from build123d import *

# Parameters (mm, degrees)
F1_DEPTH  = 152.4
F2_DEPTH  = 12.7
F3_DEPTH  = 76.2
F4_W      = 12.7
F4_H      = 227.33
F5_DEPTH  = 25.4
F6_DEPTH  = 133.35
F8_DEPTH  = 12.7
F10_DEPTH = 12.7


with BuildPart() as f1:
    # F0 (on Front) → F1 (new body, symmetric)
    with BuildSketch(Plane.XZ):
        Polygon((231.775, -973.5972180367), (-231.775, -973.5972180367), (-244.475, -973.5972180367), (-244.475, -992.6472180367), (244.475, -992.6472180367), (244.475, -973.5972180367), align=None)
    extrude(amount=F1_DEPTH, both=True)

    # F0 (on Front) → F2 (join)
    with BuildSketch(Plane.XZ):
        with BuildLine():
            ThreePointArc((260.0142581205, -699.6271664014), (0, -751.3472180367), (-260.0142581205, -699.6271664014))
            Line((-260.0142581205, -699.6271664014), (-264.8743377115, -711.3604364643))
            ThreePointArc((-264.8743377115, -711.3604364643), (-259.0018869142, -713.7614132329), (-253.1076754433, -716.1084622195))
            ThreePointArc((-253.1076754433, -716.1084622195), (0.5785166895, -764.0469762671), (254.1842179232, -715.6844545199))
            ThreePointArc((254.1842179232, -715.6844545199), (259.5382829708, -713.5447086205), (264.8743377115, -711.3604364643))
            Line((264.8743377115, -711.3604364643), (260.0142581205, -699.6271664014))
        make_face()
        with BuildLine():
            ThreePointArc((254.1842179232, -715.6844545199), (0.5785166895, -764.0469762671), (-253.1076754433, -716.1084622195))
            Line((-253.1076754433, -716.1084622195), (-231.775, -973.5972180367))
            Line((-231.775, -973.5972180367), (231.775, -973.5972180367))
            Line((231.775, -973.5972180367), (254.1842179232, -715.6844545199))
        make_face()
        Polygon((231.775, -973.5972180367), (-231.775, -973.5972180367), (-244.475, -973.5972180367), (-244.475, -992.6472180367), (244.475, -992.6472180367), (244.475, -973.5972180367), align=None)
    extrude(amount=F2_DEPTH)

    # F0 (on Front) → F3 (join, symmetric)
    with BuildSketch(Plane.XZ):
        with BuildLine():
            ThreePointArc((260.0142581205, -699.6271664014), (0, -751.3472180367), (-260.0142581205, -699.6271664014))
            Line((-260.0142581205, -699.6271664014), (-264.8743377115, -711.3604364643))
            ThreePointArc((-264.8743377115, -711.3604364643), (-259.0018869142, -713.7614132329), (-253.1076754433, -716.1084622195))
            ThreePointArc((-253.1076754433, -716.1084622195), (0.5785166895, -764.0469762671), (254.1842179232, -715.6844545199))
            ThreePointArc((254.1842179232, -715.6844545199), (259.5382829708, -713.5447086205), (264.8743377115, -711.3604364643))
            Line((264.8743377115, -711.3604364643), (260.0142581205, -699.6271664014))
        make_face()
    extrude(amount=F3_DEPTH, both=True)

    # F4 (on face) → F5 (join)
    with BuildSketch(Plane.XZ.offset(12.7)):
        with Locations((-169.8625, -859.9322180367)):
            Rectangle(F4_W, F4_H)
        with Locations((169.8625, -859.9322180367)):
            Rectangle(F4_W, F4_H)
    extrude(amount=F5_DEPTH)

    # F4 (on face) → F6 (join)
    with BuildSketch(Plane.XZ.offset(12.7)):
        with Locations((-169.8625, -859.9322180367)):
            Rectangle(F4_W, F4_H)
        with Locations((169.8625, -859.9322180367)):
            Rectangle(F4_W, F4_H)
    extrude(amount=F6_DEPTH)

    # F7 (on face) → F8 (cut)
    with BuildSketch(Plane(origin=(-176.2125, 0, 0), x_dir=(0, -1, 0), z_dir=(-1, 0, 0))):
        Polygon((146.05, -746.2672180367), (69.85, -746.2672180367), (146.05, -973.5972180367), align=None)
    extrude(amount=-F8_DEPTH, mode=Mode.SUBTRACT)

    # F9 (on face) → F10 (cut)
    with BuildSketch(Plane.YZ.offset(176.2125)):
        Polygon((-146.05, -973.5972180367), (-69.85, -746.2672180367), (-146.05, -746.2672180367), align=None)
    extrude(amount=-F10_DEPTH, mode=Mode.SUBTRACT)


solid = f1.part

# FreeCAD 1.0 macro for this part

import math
import FreeCAD as App
import Part
import Sketcher
from FreeCAD import Vector
Q = App.Units.Quantity

doc = App.newDocument("Part")
body = doc.addObject("PartDesign::Body", "Body")

sketch1 = body.newObject("Sketcher::SketchObject", "Sketch")
sketch1.AttachmentSupport = (doc.getObject("XZ_Plane"), [""])
sketch1.MapMode = "FlatFace"
sketch1.addGeometry(Part.LineSegment(Vector(-244, -974, 0), Vector(-244, -993, 0)), False)
sketch1.addGeometry(Part.LineSegment(Vector(-244, -993, 0), Vector(244, -993, 0)), False)
sketch1.addGeometry(Part.LineSegment(Vector(244, -993, 0), Vector(244, -974, 0)), False)
sketch1.addGeometry(Part.LineSegment(Vector(244, -974, 0), Vector(-244, -974, 0)), False)
sketch1.addConstraint(Sketcher.Constraint("Coincident", 0, 2, 1, 1))
sketch1.addConstraint(Sketcher.Constraint("Coincident", 1, 2, 2, 1))
sketch1.addConstraint(Sketcher.Constraint("Coincident", 2, 2, 3, 1))
sketch1.addConstraint(Sketcher.Constraint("Coincident", 3, 2, 0, 1))
sketch1.addConstraint(Sketcher.Constraint("Vertical", 0))
sketch1.addConstraint(Sketcher.Constraint("Horizontal", 1))
sketch1.addConstraint(Sketcher.Constraint("Vertical", 2))
sketch1.addConstraint(Sketcher.Constraint("Horizontal", 3))
sketch1.addConstraint(Sketcher.Constraint("DistanceX", 1, 1, 1, 2, Q("19.25 in")))
sketch1.addConstraint(Sketcher.Constraint("DistanceY", 0, 2, 0, 1, Q("0.75 in")))
sketch1.addConstraint(Sketcher.Constraint("DistanceX", 0, 2, -1, 1, Q("9.625 in")))
sketch1.addConstraint(Sketcher.Constraint("DistanceY", 0, 2, -1, 1, Q("992.647218 mm")))
pad1 = body.newObject("PartDesign::Pad", "Pad")
pad1.Profile = sketch1
pad1.Length = Q("12 in")
pad1.Midplane = True

sketch2 = body.newObject("Sketcher::SketchObject", "Sketch001")
sketch2.AttachmentSupport = (doc.getObject("XZ_Plane"), [""])
sketch2.MapMode = "FlatFace"
sketch2.addGeometry(Part.ArcOfCircle(Part.Circle(Vector(0, -72, 0), Vector(0, 0, 1), 679), math.radians(-113), math.radians(-67)), False)
sketch2.addGeometry(Part.LineSegment(Vector(-260, -700, 0), Vector(-265, -711, 0)), False)
sketch2.addGeometry(Part.ArcOfCircle(Part.Circle(Vector(0, -72, 0), Vector(0, 0, 1), 692), math.radians(-112.5), math.radians(-111.45)), False)
sketch2.addGeometry(Part.LineSegment(Vector(-253, -716, 0), Vector(-232, -974, 0)), False)
sketch2.addGeometry(Part.LineSegment(Vector(-232, -974, 0), Vector(-244, -974, 0)), False)
sketch2.addGeometry(Part.LineSegment(Vector(-244, -974, 0), Vector(-244, -993, 0)), False)
sketch2.addGeometry(Part.LineSegment(Vector(-244, -993, 0), Vector(244, -993, 0)), False)
sketch2.addGeometry(Part.LineSegment(Vector(244, -993, 0), Vector(244, -974, 0)), False)
sketch2.addGeometry(Part.LineSegment(Vector(244, -974, 0), Vector(232, -974, 0)), False)
sketch2.addGeometry(Part.LineSegment(Vector(232, -974, 0), Vector(254, -716, 0)), False)
sketch2.addGeometry(Part.ArcOfCircle(Part.Circle(Vector(0, -72, 0), Vector(0, 0, 1), 692), math.radians(-68.45), math.radians(-67.5)), False)
sketch2.addGeometry(Part.LineSegment(Vector(265, -711, 0), Vector(260, -700, 0)), False)
sketch2.addConstraint(Sketcher.Constraint("Coincident", 0, 1, 1, 1))
sketch2.addConstraint(Sketcher.Constraint("Coincident", 1, 2, 2, 1))
sketch2.addConstraint(Sketcher.Constraint("Coincident", 2, 2, 3, 1))
sketch2.addConstraint(Sketcher.Constraint("Coincident", 3, 2, 4, 1))
sketch2.addConstraint(Sketcher.Constraint("Coincident", 4, 2, 5, 1))
sketch2.addConstraint(Sketcher.Constraint("Coincident", 5, 2, 6, 1))
sketch2.addConstraint(Sketcher.Constraint("Coincident", 6, 2, 7, 1))
sketch2.addConstraint(Sketcher.Constraint("Coincident", 7, 2, 8, 1))
sketch2.addConstraint(Sketcher.Constraint("Coincident", 8, 2, 9, 1))
sketch2.addConstraint(Sketcher.Constraint("Coincident", 9, 2, 10, 1))
sketch2.addConstraint(Sketcher.Constraint("Coincident", 10, 2, 11, 1))
sketch2.addConstraint(Sketcher.Constraint("Coincident", 11, 2, 0, 2))
sketch2.addConstraint(Sketcher.Constraint("Horizontal", 4))
sketch2.addConstraint(Sketcher.Constraint("Vertical", 5))
sketch2.addConstraint(Sketcher.Constraint("Horizontal", 6))
sketch2.addConstraint(Sketcher.Constraint("Vertical", 7))
sketch2.addConstraint(Sketcher.Constraint("Horizontal", 8))
sketch2.addConstraint(Sketcher.Constraint("Coincident", 2, 3, 0, 3))
sketch2.addConstraint(Sketcher.Constraint("Coincident", 10, 3, 0, 3))
sketch2.addConstraint(Sketcher.Constraint("Equal", 2, 10))
sketch2.addConstraint(Sketcher.Constraint("Symmetric", 4, 2, 7, 2, -2))
sketch2.addConstraint(Sketcher.Constraint("PointOnObject", 0, 3, -2))
sketch2.addConstraint(Sketcher.Constraint("Horizontal", 1, 2, 10, 2))
sketch2.addConstraint(Sketcher.Constraint("Horizontal", 0, 1, 11, 2))
sketch2.addConstraint(Sketcher.Constraint("Equal", 4, 8))
sketch2.addConstraint(Sketcher.Constraint("Radius", 0, Q("26.75 in")))
sketch2.addConstraint(Sketcher.Constraint("Radius", 2, Q("27.2499999 in")))
sketch2.addConstraint(Sketcher.Constraint("DistanceX", 4, 2, 4, 1, Q("0.5 in")))
sketch2.addConstraint(Sketcher.Constraint("DistanceX", 6, 1, 6, 2, Q("19.25 in")))
sketch2.addConstraint(Sketcher.Constraint("DistanceY", 5, 2, 5, 1, Q("0.75 in")))
sketch2.addConstraint(Sketcher.Constraint("Angle", 1, Q("-112.5 deg")))
sketch2.addConstraint(Sketcher.Constraint("DistanceY", 3, 2, 2, 3, Q("35.4999999 in")))
sketch2.addConstraint(Sketcher.Constraint("Distance", 3, Q("258.37094 mm")))
sketch2.addConstraint(Sketcher.Constraint("DistanceY", 0, 3, -1, 1, Q("71.897218 mm")))
sketch2.addConstraint(Sketcher.Constraint("DistanceX", -1, 1, 11, 2, Q("260.014258 mm")))
sketch2.addConstraint(Sketcher.Constraint("DistanceX", 9, 2, 11, 2, Q("5.83004 mm")))
pad2 = body.newObject("PartDesign::Pad", "Pad001")
pad2.Profile = sketch2
pad2.Length = Q("0.5 in")

sketch3 = body.newObject("Sketcher::SketchObject", "Sketch002")
sketch3.AttachmentSupport = (doc.getObject("XZ_Plane"), [""])
sketch3.MapMode = "FlatFace"
sketch3.addGeometry(Part.ArcOfCircle(Part.Circle(Vector(0, -72, 0), Vector(0, 0, 1), 679), math.radians(-113), math.radians(-67)), False)
sketch3.addGeometry(Part.LineSegment(Vector(-260, -700, 0), Vector(-265, -711, 0)), False)
sketch3.addGeometry(Part.ArcOfCircle(Part.Circle(Vector(0, -72, 0), Vector(0, 0, 1), 692), math.radians(-112.5), math.radians(-111.45)), False)
sketch3.addGeometry(Part.ArcOfCircle(Part.Circle(Vector(0, -72, 0), Vector(0, 0, 1), 692), math.radians(-111), math.radians(-68)), False)
sketch3.addGeometry(Part.ArcOfCircle(Part.Circle(Vector(0, -72, 0), Vector(0, 0, 1), 692), math.radians(-68.45), math.radians(-67.5)), False)
sketch3.addGeometry(Part.LineSegment(Vector(265, -711, 0), Vector(260, -700, 0)), False)
sketch3.addConstraint(Sketcher.Constraint("Coincident", 0, 1, 1, 1))
sketch3.addConstraint(Sketcher.Constraint("Coincident", 1, 2, 2, 1))
sketch3.addConstraint(Sketcher.Constraint("Coincident", 2, 2, 3, 1))
sketch3.addConstraint(Sketcher.Constraint("Coincident", 3, 2, 4, 1))
sketch3.addConstraint(Sketcher.Constraint("Coincident", 4, 2, 5, 1))
sketch3.addConstraint(Sketcher.Constraint("Coincident", 5, 2, 0, 2))
sketch3.addConstraint(Sketcher.Constraint("Coincident", 2, 3, 0, 3))
sketch3.addConstraint(Sketcher.Constraint("Coincident", 3, 3, 0, 3))
sketch3.addConstraint(Sketcher.Constraint("Coincident", 4, 3, 0, 3))
sketch3.addConstraint(Sketcher.Constraint("PointOnObject", 0, 3, -2))
sketch3.addConstraint(Sketcher.Constraint("Horizontal", 1, 2, 4, 2))
sketch3.addConstraint(Sketcher.Constraint("Horizontal", 0, 1, 5, 2))
sketch3.addConstraint(Sketcher.Constraint("Radius", 0, Q("26.75 in")))
sketch3.addConstraint(Sketcher.Constraint("Radius", 2, Q("27.2499999 in")))
sketch3.addConstraint(Sketcher.Constraint("Angle", 1, Q("-112.5 deg")))
sketch3.addConstraint(Sketcher.Constraint("DistanceY", 0, 3, -1, 1, Q("71.897218 mm")))
sketch3.addConstraint(Sketcher.Constraint("DistanceX", -1, 1, 5, 2, Q("260.014258 mm")))
sketch3.addConstraint(Sketcher.Constraint("DistanceY", 3, 2, 0, 1, Q("16.057288 mm")))
sketch3.addConstraint(Sketcher.Constraint("DistanceX", 2, 2, -1, 1, Q("253.107675 mm")))
pad3 = body.newObject("PartDesign::Pad", "Pad002")
pad3.Profile = sketch3
pad3.Length = Q("6 in")
pad3.Midplane = True

sketch4 = body.newObject("Sketcher::SketchObject", "Sketch003")
sketch4.AttachmentSupport = (doc.getObject("XZ_Plane"), [""])
sketch4.MapMode = "FlatFace"
sketch4.AttachmentOffset = App.Placement(Vector(0, 0, 0.5 * 25.4), App.Rotation())
sketch4.addGeometry(Part.LineSegment(Vector(-176, -746, 0), Vector(-176, -974, 0)), False)
sketch4.addGeometry(Part.LineSegment(Vector(-176, -974, 0), Vector(-164, -974, 0)), False)
sketch4.addGeometry(Part.LineSegment(Vector(-164, -974, 0), Vector(-164, -746, 0)), False)
sketch4.addGeometry(Part.LineSegment(Vector(-164, -746, 0), Vector(-176, -746, 0)), False)
sketch4.addGeometry(Part.LineSegment(Vector(164, -746, 0), Vector(164, -974, 0)), False)
sketch4.addGeometry(Part.LineSegment(Vector(164, -974, 0), Vector(176, -974, 0)), False)
sketch4.addGeometry(Part.LineSegment(Vector(176, -974, 0), Vector(176, -746, 0)), False)
sketch4.addGeometry(Part.LineSegment(Vector(176, -746, 0), Vector(164, -746, 0)), False)
sketch4.addConstraint(Sketcher.Constraint("Coincident", 0, 2, 1, 1))
sketch4.addConstraint(Sketcher.Constraint("Coincident", 1, 2, 2, 1))
sketch4.addConstraint(Sketcher.Constraint("Coincident", 2, 2, 3, 1))
sketch4.addConstraint(Sketcher.Constraint("Coincident", 3, 2, 0, 1))
sketch4.addConstraint(Sketcher.Constraint("Coincident", 4, 2, 5, 1))
sketch4.addConstraint(Sketcher.Constraint("Coincident", 5, 2, 6, 1))
sketch4.addConstraint(Sketcher.Constraint("Coincident", 6, 2, 7, 1))
sketch4.addConstraint(Sketcher.Constraint("Coincident", 7, 2, 4, 1))
sketch4.addConstraint(Sketcher.Constraint("Vertical", 0))
sketch4.addConstraint(Sketcher.Constraint("Horizontal", 1))
sketch4.addConstraint(Sketcher.Constraint("Vertical", 2))
sketch4.addConstraint(Sketcher.Constraint("Horizontal", 3))
sketch4.addConstraint(Sketcher.Constraint("Vertical", 4))
sketch4.addConstraint(Sketcher.Constraint("Horizontal", 5))
sketch4.addConstraint(Sketcher.Constraint("Vertical", 6))
sketch4.addConstraint(Sketcher.Constraint("Horizontal", 7))
sketch4.addConstraint(Sketcher.Constraint("Symmetric", 1, 2, 4, 2, -2))
sketch4.addConstraint(Sketcher.Constraint("Symmetric", 3, 2, 6, 2, -2))
sketch4.addConstraint(Sketcher.Constraint("DistanceX", 1, 1, 1, 2, Q("0.5 in")))
sketch4.addConstraint(Sketcher.Constraint("DistanceY", 0, 2, 0, 1, Q("8.95 in")))
sketch4.addConstraint(Sketcher.Constraint("DistanceX", 0, 2, -1, 1, Q("6.9375 in")))
sketch4.addConstraint(Sketcher.Constraint("DistanceY", 0, 2, -1, 1, Q("973.597218 mm")))
pad4 = body.newObject("PartDesign::Pad", "Pad003")
pad4.Profile = sketch4
pad4.Length = Q("1 in")

sketch5 = body.newObject("Sketcher::SketchObject", "Sketch004")
sketch5.AttachmentSupport = (doc.getObject("XZ_Plane"), [""])
sketch5.MapMode = "FlatFace"
sketch5.AttachmentOffset = App.Placement(Vector(0, 0, 0.5 * 25.4), App.Rotation())
sketch5.addGeometry(Part.LineSegment(Vector(-176, -746, 0), Vector(-176, -974, 0)), False)
sketch5.addGeometry(Part.LineSegment(Vector(-176, -974, 0), Vector(-164, -974, 0)), False)
sketch5.addGeometry(Part.LineSegment(Vector(-164, -974, 0), Vector(-164, -746, 0)), False)
sketch5.addGeometry(Part.LineSegment(Vector(-164, -746, 0), Vector(-176, -746, 0)), False)
sketch5.addGeometry(Part.LineSegment(Vector(164, -746, 0), Vector(164, -974, 0)), False)
sketch5.addGeometry(Part.LineSegment(Vector(164, -974, 0), Vector(176, -974, 0)), False)
sketch5.addGeometry(Part.LineSegment(Vector(176, -974, 0), Vector(176, -746, 0)), False)
sketch5.addGeometry(Part.LineSegment(Vector(176, -746, 0), Vector(164, -746, 0)), False)
sketch5.addConstraint(Sketcher.Constraint("Coincident", 0, 2, 1, 1))
sketch5.addConstraint(Sketcher.Constraint("Coincident", 1, 2, 2, 1))
sketch5.addConstraint(Sketcher.Constraint("Coincident", 2, 2, 3, 1))
sketch5.addConstraint(Sketcher.Constraint("Coincident", 3, 2, 0, 1))
sketch5.addConstraint(Sketcher.Constraint("Coincident", 4, 2, 5, 1))
sketch5.addConstraint(Sketcher.Constraint("Coincident", 5, 2, 6, 1))
sketch5.addConstraint(Sketcher.Constraint("Coincident", 6, 2, 7, 1))
sketch5.addConstraint(Sketcher.Constraint("Coincident", 7, 2, 4, 1))
sketch5.addConstraint(Sketcher.Constraint("Vertical", 0))
sketch5.addConstraint(Sketcher.Constraint("Horizontal", 1))
sketch5.addConstraint(Sketcher.Constraint("Vertical", 2))
sketch5.addConstraint(Sketcher.Constraint("Horizontal", 3))
sketch5.addConstraint(Sketcher.Constraint("Vertical", 4))
sketch5.addConstraint(Sketcher.Constraint("Horizontal", 5))
sketch5.addConstraint(Sketcher.Constraint("Vertical", 6))
sketch5.addConstraint(Sketcher.Constraint("Horizontal", 7))
sketch5.addConstraint(Sketcher.Constraint("Symmetric", 1, 2, 4, 2, -2))
sketch5.addConstraint(Sketcher.Constraint("Symmetric", 3, 2, 6, 2, -2))
sketch5.addConstraint(Sketcher.Constraint("DistanceX", 1, 1, 1, 2, Q("0.5 in")))
sketch5.addConstraint(Sketcher.Constraint("DistanceY", 0, 2, 0, 1, Q("8.95 in")))
sketch5.addConstraint(Sketcher.Constraint("DistanceX", 0, 2, -1, 1, Q("6.9375 in")))
sketch5.addConstraint(Sketcher.Constraint("DistanceY", 0, 2, -1, 1, Q("973.597218 mm")))
pad5 = body.newObject("PartDesign::Pad", "Pad004")
pad5.Profile = sketch5
pad5.Length = Q("5.25 in")

sketch6 = body.newObject("Sketcher::SketchObject", "Sketch005")
sketch6.AttachmentSupport = (doc.getObject("YZ_Plane"), [""])
sketch6.MapMode = "FlatFace"
sketch6.AttachmentOffset = App.Placement(Vector(0, 0, -6.9375 * 25.4), App.Rotation())
sketch6.addGeometry(Part.LineSegment(Vector(-146, -746, 0), Vector(-70, -746, 0)), False)
sketch6.addGeometry(Part.LineSegment(Vector(-70, -746, 0), Vector(-146, -974, 0)), False)
sketch6.addGeometry(Part.LineSegment(Vector(-146, -974, 0), Vector(-146, -746, 0)), False)
sketch6.addConstraint(Sketcher.Constraint("Coincident", 0, 2, 1, 1))
sketch6.addConstraint(Sketcher.Constraint("Coincident", 1, 2, 2, 1))
sketch6.addConstraint(Sketcher.Constraint("Coincident", 2, 2, 0, 1))
sketch6.addConstraint(Sketcher.Constraint("Horizontal", 0))
sketch6.addConstraint(Sketcher.Constraint("Vertical", 2))
sketch6.addConstraint(Sketcher.Constraint("DistanceX", 0, 1, 0, 2, Q("3 in")))
sketch6.addConstraint(Sketcher.Constraint("DistanceY", 2, 1, 2, 2, Q("8.95 in")))
sketch6.addConstraint(Sketcher.Constraint("DistanceX", 0, 2, -1, 1, Q("2.75 in")))
sketch6.addConstraint(Sketcher.Constraint("DistanceY", 0, 2, -1, 1, Q("746.267218 mm")))
pocket1 = body.newObject("PartDesign::Pocket", "Pocket")
pocket1.Profile = sketch6
pocket1.Length = Q("0.5 in")
pocket1.Reversed = True

sketch7 = body.newObject("Sketcher::SketchObject", "Sketch006")
sketch7.AttachmentSupport = (doc.getObject("YZ_Plane"), [""])
sketch7.MapMode = "FlatFace"
sketch7.AttachmentOffset = App.Placement(Vector(0, 0, 6.9375 * 25.4), App.Rotation())
sketch7.addGeometry(Part.LineSegment(Vector(-146, -974, 0), Vector(-70, -746, 0)), False)
sketch7.addGeometry(Part.LineSegment(Vector(-70, -746, 0), Vector(-146, -746, 0)), False)
sketch7.addGeometry(Part.LineSegment(Vector(-146, -746, 0), Vector(-146, -974, 0)), False)
sketch7.addConstraint(Sketcher.Constraint("Coincident", 0, 2, 1, 1))
sketch7.addConstraint(Sketcher.Constraint("Coincident", 1, 2, 2, 1))
sketch7.addConstraint(Sketcher.Constraint("Coincident", 2, 2, 0, 1))
sketch7.addConstraint(Sketcher.Constraint("Horizontal", 1))
sketch7.addConstraint(Sketcher.Constraint("Vertical", 2))
sketch7.addConstraint(Sketcher.Constraint("DistanceX", 1, 2, 1, 1, Q("3 in")))
sketch7.addConstraint(Sketcher.Constraint("DistanceY", 2, 2, 2, 1, Q("8.95 in")))
sketch7.addConstraint(Sketcher.Constraint("DistanceX", 0, 2, -1, 1, Q("2.75 in")))
sketch7.addConstraint(Sketcher.Constraint("DistanceY", 0, 2, -1, 1, Q("746.267218 mm")))
pocket2 = body.newObject("PartDesign::Pocket", "Pocket001")
pocket2.Profile = sketch7
pocket2.Length = Q("0.5 in")

doc.recompute()
